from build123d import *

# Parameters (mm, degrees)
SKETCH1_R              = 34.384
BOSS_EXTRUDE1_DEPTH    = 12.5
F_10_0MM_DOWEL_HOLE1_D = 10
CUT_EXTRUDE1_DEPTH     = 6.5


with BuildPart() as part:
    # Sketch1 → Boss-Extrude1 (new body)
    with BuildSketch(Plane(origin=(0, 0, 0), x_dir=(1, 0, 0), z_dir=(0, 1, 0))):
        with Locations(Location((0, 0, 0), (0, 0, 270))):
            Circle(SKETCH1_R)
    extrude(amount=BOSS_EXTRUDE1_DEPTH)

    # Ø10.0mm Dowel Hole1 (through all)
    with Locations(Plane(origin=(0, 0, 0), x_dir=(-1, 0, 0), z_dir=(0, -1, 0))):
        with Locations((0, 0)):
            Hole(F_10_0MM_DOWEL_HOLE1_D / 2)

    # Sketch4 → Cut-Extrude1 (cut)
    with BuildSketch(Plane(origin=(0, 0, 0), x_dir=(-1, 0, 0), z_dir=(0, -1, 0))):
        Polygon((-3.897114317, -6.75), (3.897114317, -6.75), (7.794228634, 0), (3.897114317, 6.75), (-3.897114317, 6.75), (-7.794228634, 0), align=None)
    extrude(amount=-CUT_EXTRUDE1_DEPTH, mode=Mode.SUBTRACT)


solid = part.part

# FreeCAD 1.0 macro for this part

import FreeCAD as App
import Part
import Sketcher
Q = App.Units.Quantity


def add_polygon(sketch, points):
    """Adds a closed chain of lines whose ends are joined by coincident constraints."""
    first, n = sketch.GeometryCount, len(points)
    for a, b in zip(points, points[1:] + points[:1]):
        sketch.addGeometry(Part.LineSegment(App.Vector(*a, 0), App.Vector(*b, 0)), False)
    for i in range(n):
        sketch.addConstraint(Sketcher.Constraint("Coincident", first + i, 2, first + (i + 1) % n, 1))

doc = App.newDocument("Part")
body = doc.addObject("PartDesign::Body", "Body")

# Sketch on XZ plane
sketch1 = body.newObject("Sketcher::SketchObject", "Sketch")
sketch1.AttachmentSupport = (doc.getObject("XZ_Plane"), [""])
sketch1.MapMode = "FlatFace"
sketch1.addGeometry(Part.Circle(App.Vector(0, 0, 0), App.Vector(0, 0, 1), 34), False)
sketch1.addConstraint([
    Sketcher.Constraint("Coincident", 0, 3, -1, 1),
    Sketcher.Constraint("Diameter", 0, Q("68.768 mm")),
])
pad1 = body.newObject("PartDesign::Pad", "Pad")
pad1.Profile = sketch1
pad1.Length = 12.5
pad1.Reversed = True

# Sketch on XZ plane
sketch2 = body.newObject("Sketcher::SketchObject", "Sketch001")
sketch2.AttachmentSupport = (doc.getObject("XZ_Plane"), [""])
sketch2.MapMode = "FlatFace"
sketch2.addGeometry(Part.Circle(App.Vector(0, 0, 0), App.Vector(0, 0, 1), 5), False)
sketch2.addConstraint([
    Sketcher.Constraint("Coincident", 0, 3, -1, 1),
    Sketcher.Constraint("Diameter", 0, Q("10 mm")),
])
doc.recompute()
hole = body.newObject("PartDesign::Hole", "Hole")
hole.Profile = sketch2
hole.ThreadType = "None"
hole.Diameter = 10
hole.DepthType = "ThroughAll"

# Sketch on XZ plane
sketch3 = body.newObject("Sketcher::SketchObject", "Sketch002")
sketch3.AttachmentSupport = (doc.getObject("XZ_Plane"), [""])
sketch3.MapMode = "FlatFace"
add_polygon(sketch3, [(4, 7), (-4, 7), (-8, 0), (-4, -7), (4, -7), (8, 0)])  # lines 0-5
sketch3.addConstraint([
    Sketcher.Constraint("Horizontal", 0),
    Sketcher.Constraint("Horizontal", 3),
    Sketcher.Constraint("Symmetric", 0, 2, 3, 2, -1, 1),
    Sketcher.Constraint("Symmetric", 1, 2, 4, 2, -1, 1),
    Sketcher.Constraint("PointOnObject", 1, 2, -1),
    Sketcher.Constraint("Parallel", 2, 5),
    Sketcher.Constraint("Vertical", 0, 2, 2, 2),
    Sketcher.Constraint("Angle", 1, Q("-120 deg")),
    Sketcher.Constraint("DistanceY", 2, 2, 0, 2, Q("13.5 mm")),
    Sketcher.Constraint("DistanceX", 0, 2, 0, 1, Q("7.794229 mm")),
])
pocket1 = body.newObject("PartDesign::Pocket", "Pocket")
pocket1.Profile = sketch3
pocket1.Length = 6.5

doc.recompute()
